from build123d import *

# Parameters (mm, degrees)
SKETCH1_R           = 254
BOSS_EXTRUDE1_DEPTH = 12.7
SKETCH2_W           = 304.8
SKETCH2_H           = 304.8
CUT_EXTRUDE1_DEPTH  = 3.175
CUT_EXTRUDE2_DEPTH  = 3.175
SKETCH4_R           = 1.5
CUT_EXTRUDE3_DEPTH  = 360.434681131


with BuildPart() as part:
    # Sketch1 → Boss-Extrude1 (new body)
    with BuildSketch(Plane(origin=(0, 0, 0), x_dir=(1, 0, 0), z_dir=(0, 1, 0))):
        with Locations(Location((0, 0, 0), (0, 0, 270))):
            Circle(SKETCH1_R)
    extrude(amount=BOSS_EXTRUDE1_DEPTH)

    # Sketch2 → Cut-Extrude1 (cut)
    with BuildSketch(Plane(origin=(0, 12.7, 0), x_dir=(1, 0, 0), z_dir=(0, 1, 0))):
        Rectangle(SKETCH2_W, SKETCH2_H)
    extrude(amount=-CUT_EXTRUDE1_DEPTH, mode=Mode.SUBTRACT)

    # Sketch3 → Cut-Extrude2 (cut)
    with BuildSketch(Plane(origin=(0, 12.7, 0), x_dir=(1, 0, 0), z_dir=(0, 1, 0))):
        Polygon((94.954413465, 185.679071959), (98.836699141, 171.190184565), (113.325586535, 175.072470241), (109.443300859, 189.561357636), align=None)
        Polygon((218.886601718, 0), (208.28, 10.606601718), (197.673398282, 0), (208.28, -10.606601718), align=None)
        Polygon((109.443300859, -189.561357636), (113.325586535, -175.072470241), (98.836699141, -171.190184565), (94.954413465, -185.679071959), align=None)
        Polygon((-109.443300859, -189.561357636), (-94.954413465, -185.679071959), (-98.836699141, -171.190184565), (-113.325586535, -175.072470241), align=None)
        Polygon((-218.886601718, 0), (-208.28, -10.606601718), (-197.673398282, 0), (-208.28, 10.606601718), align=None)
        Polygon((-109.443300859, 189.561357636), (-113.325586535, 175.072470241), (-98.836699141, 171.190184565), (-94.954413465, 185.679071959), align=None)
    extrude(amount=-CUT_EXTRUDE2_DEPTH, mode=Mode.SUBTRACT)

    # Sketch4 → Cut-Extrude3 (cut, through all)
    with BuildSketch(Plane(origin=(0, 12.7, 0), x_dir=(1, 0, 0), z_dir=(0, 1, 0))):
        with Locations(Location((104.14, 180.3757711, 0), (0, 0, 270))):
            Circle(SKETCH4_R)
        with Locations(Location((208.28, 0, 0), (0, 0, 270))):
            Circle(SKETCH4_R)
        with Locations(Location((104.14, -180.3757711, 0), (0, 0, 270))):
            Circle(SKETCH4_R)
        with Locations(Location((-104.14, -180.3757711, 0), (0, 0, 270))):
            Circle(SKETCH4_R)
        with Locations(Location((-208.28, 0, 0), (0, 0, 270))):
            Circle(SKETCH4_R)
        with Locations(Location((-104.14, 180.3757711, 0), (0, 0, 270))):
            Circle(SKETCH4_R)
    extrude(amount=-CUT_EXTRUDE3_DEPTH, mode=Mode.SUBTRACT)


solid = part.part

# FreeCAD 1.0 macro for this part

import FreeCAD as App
import Part
import Sketcher
from FreeCAD import Vector
Q = App.Units.Quantity

doc = App.newDocument("Part")
params = doc.addObject("Spreadsheet::Sheet", "Params")
for row, (alias, value) in enumerate([
    ("sketch1_diameter", "20 in"),
    ("pad1_length", "0.5 in"),
    ("sketch2_width", "12 in"),
    ("pocket1_length", "0.125 in"),
    ("pocket2_length", "0.125 in"),
], start=1):
    params.set(f"A{row}", alias)
    params.set(f"B{row}", "=" + value)
    params.setAlias(f"B{row}", alias)

body = doc.addObject("PartDesign::Body", "Body")

sketch1 = body.newObject("Sketcher::SketchObject", "Sketch")
sketch1.AttachmentSupport = (doc.getObject("XZ_Plane"), [""])
sketch1.MapMode = "FlatFace"
sketch1.addGeometry(Part.Circle(Vector(0, 0, 0), Vector(0, 0, 1), 254), False)
sketch1.addConstraint([
    Sketcher.Constraint("Coincident", 0, 3, -1, 1),
    Sketcher.Constraint("Diameter", 0, Q("20 in")),
])
sketch1.setExpression("Constraints[1]", "Params.sketch1_diameter")
pad1 = body.newObject("PartDesign::Pad", "Pad")
pad1.Profile = sketch1
pad1.setExpression("Length", "Params.pad1_length")
pad1.Reversed = True

sketch2 = body.newObject("Sketcher::SketchObject", "Sketch001")
sketch2.AttachmentSupport = (doc.getObject("XZ_Plane"), [""])
sketch2.MapMode = "FlatFace"
sketch2.AttachmentOffset = App.Placement(Vector(0, 0, -0.5 * 25.4), App.Rotation())
sketch2.addGeometry([
    Part.LineSegment(Vector(-152, -152, 0), Vector(-152, 152, 0)),
    Part.LineSegment(Vector(-152, 152, 0), Vector(152, 152, 0)),
    Part.LineSegment(Vector(152, 152, 0), Vector(152, -152, 0)),
    Part.LineSegment(Vector(152, -152, 0), Vector(-152, -152, 0)),
], False)
sketch2.addConstraint([
    Sketcher.Constraint("Coincident", 0, 2, 1, 1),
    Sketcher.Constraint("Coincident", 1, 2, 2, 1),
    Sketcher.Constraint("Coincident", 2, 2, 3, 1),
    Sketcher.Constraint("Coincident", 3, 2, 0, 1),
    Sketcher.Constraint("Vertical", 0),
    Sketcher.Constraint("Horizontal", 1),
    Sketcher.Constraint("Vertical", 2),
    Sketcher.Constraint("Horizontal", 3),
    Sketcher.Constraint("Symmetric", 0, 2, 2, 2, -1, 1),
    Sketcher.Constraint("Equal", 3, 0),
    Sketcher.Constraint("DistanceX", 1, 1, 1, 2, Q("12 in")),
])
sketch2.setExpression("Constraints[10]", "Params.sketch2_width")
pocket1 = body.newObject("PartDesign::Pocket", "Pocket")
pocket1.Profile = sketch2
pocket1.setExpression("Length", "Params.pocket1_length")
pocket1.Reversed = True

sketch3 = body.newObject("Sketcher::SketchObject", "Sketch002")
sketch3.AttachmentSupport = (doc.getObject("XZ_Plane"), [""])
sketch3.MapMode = "FlatFace"
sketch3.AttachmentOffset = App.Placement(Vector(0, 0, -0.5 * 25.4), App.Rotation())
sketch3.addGeometry([
    Part.LineSegment(Vector(95, -186, 0), Vector(99, -171, 0)),
    Part.LineSegment(Vector(99, -171, 0), Vector(113, -175, 0)),
    Part.LineSegment(Vector(113, -175, 0), Vector(109, -190, 0)),
    Part.LineSegment(Vector(109, -190, 0), Vector(95, -186, 0)),
    Part.LineSegment(Vector(219, 0, 0), Vector(208, -11, 0)),
    Part.LineSegment(Vector(208, -11, 0), Vector(198, 0, 0)),
    Part.LineSegment(Vector(198, 0, 0), Vector(208, 11, 0)),
    Part.LineSegment(Vector(208, 11, 0), Vector(219, 0, 0)),
    Part.LineSegment(Vector(109, 190, 0), Vector(113, 175, 0)),
    Part.LineSegment(Vector(113, 175, 0), Vector(99, 171, 0)),
    Part.LineSegment(Vector(99, 171, 0), Vector(95, 186, 0)),
    Part.LineSegment(Vector(95, 186, 0), Vector(109, 190, 0)),
    Part.LineSegment(Vector(-109, 190, 0), Vector(-95, 186, 0)),
    Part.LineSegment(Vector(-95, 186, 0), Vector(-99, 171, 0)),
    Part.LineSegment(Vector(-99, 171, 0), Vector(-113, 175, 0)),
    Part.LineSegment(Vector(-113, 175, 0), Vector(-109, 190, 0)),
    Part.LineSegment(Vector(-219, 0, 0), Vector(-208, 11, 0)),
    Part.LineSegment(Vector(-208, 11, 0), Vector(-198, 0, 0)),
    Part.LineSegment(Vector(-198, 0, 0), Vector(-208, -11, 0)),
    Part.LineSegment(Vector(-208, -11, 0), Vector(-219, 0, 0)),
    Part.LineSegment(Vector(-109, -190, 0), Vector(-113, -175, 0)),
    Part.LineSegment(Vector(-113, -175, 0), Vector(-99, -171, 0)),
    Part.LineSegment(Vector(-99, -171, 0), Vector(-95, -186, 0)),
    Part.LineSegment(Vector(-95, -186, 0), Vector(-109, -190, 0)),
], False)
sketch3.addConstraint([
    Sketcher.Constraint("Coincident", 0, 2, 1, 1),
    Sketcher.Constraint("Coincident", 1, 2, 2, 1),
    Sketcher.Constraint("Coincident", 2, 2, 3, 1),
    Sketcher.Constraint("Coincident", 3, 2, 0, 1),
    Sketcher.Constraint("Coincident", 4, 2, 5, 1),
    Sketcher.Constraint("Coincident", 5, 2, 6, 1),
    Sketcher.Constraint("Coincident", 6, 2, 7, 1),
    Sketcher.Constraint("Coincident", 7, 2, 4, 1),
    Sketcher.Constraint("Coincident", 8, 2, 9, 1),
    Sketcher.Constraint("Coincident", 9, 2, 10, 1),
    Sketcher.Constraint("Coincident", 10, 2, 11, 1),
    Sketcher.Constraint("Coincident", 11, 2, 8, 1),
    Sketcher.Constraint("Coincident", 12, 2, 13, 1),
    Sketcher.Constraint("Coincident", 13, 2, 14, 1),
    Sketcher.Constraint("Coincident", 14, 2, 15, 1),
    Sketcher.Constraint("Coincident", 15, 2, 12, 1),
    Sketcher.Constraint("Coincident", 16, 2, 17, 1),
    Sketcher.Constraint("Coincident", 17, 2, 18, 1),
    Sketcher.Constraint("Coincident", 18, 2, 19, 1),
    Sketcher.Constraint("Coincident", 19, 2, 16, 1),
    Sketcher.Constraint("Coincident", 20, 2, 21, 1),
    Sketcher.Constraint("Coincident", 21, 2, 22, 1),
    Sketcher.Constraint("Coincident", 22, 2, 23, 1),
    Sketcher.Constraint("Coincident", 23, 2, 20, 1),
    Sketcher.Constraint("Symmetric", 3, 2, 12, 2, -1, 1),
    Sketcher.Constraint("Symmetric", 0, 2, 13, 2, -1, 1),
    Sketcher.Constraint("Symmetric", 1, 2, 14, 2, -1, 1),
    Sketcher.Constraint("Symmetric", 2, 2, 15, 2, -1, 1),
    Sketcher.Constraint("Symmetric", 4, 2, 16, 2, -1, 1),
    Sketcher.Constraint("Symmetric", 5, 2, 17, 2, -1, 1),
    Sketcher.Constraint("Symmetric", 6, 2, 18, 2, -1, 1),
    Sketcher.Constraint("Symmetric", 7, 2, 19, 2, -1, 1),
    Sketcher.Constraint("Symmetric", 8, 2, 20, 2, -1, 1),
    Sketcher.Constraint("Symmetric", 9, 2, 21, 2, -1, 1),
    Sketcher.Constraint("Symmetric", 10, 2, 22, 2, -1, 1),
    Sketcher.Constraint("Symmetric", 11, 2, 23, 2, -1, 1),
    Sketcher.Constraint("Symmetric", 10, 2, 12, 2, -2),
    Sketcher.Constraint("Symmetric", 9, 2, 13, 2, -2),
    Sketcher.Constraint("Symmetric", 8, 2, 14, 2, -2),
    Sketcher.Constraint("Symmetric", 11, 2, 15, 2, -2),
    Sketcher.Constraint("Symmetric", 6, 2, 16, 2, -2),
    Sketcher.Constraint("PointOnObject", 5, 2, -1),
    Sketcher.Constraint("PointOnObject", 7, 2, -1),
    Sketcher.Constraint("Perpendicular", 0, 1),
    Sketcher.Constraint("Perpendicular", 1, 2),
    Sketcher.Constraint("Perpendicular", 2, 3),
    Sketcher.Constraint("Perpendicular", 4, 5),
    Sketcher.Constraint("Perpendicular", 5, 6),
    Sketcher.Constraint("Equal", 0, 1),
    Sketcher.Constraint("Equal", 3, 4),
    Sketcher.Constraint("Angle", 0, Q("75 deg")),
    Sketcher.Constraint("DistanceX", -1, 1, 4, 2, Q("8.2 in")),
    Sketcher.Constraint("DistanceX", 12, 2, 8, 2, Q("8.2 in")),
    Sketcher.Constraint("Distance", 0, 15.0),
    Sketcher.Constraint("DistanceY", 1, 2, -1, 1, 175.07247),
])
pocket2 = body.newObject("PartDesign::Pocket", "Pocket001")
pocket2.Profile = sketch3
pocket2.setExpression("Length", "Params.pocket2_length")
pocket2.Reversed = True

sketch4 = body.newObject("Sketcher::SketchObject", "Sketch003")
sketch4.AttachmentSupport = (doc.getObject("XZ_Plane"), [""])
sketch4.MapMode = "FlatFace"
sketch4.AttachmentOffset = App.Placement(Vector(0, 0, -0.5 * 25.4), App.Rotation())
sketch4.addGeometry([
    Part.Circle(Vector(104.1, -180.4, 0), Vector(0, 0, 1), 1.5),
    Part.Circle(Vector(208.3, 0, 0), Vector(0, 0, 1), 1.5),
    Part.Circle(Vector(104.1, 180.4, 0), Vector(0, 0, 1), 1.5),
    Part.Circle(Vector(-104.1, 180.4, 0), Vector(0, 0, 1), 1.5),
    Part.Circle(Vector(-208.3, 0, 0), Vector(0, 0, 1), 1.5),
    Part.Circle(Vector(-104.1, -180.4, 0), Vector(0, 0, 1), 1.5),
], False)
sketch4.addConstraint([
    Sketcher.Constraint("Equal", 0, 1),
    Sketcher.Constraint("Equal", 1, 2),
    Sketcher.Constraint("Equal", 2, 3),
    Sketcher.Constraint("Equal", 3, 4),
    Sketcher.Constraint("Equal", 4, 5),
    Sketcher.Constraint("Symmetric", 0, 3, 3, 3, -1, 1),
    Sketcher.Constraint("Symmetric", 1, 3, 4, 3, -1, 1),
    Sketcher.Constraint("Symmetric", 2, 3, 5, 3, -1, 1),
    Sketcher.Constraint("Symmetric", 2, 3, 3, 3, -2),
    Sketcher.Constraint("PointOnObject", 1, 3, -1),
    Sketcher.Constraint("DistanceX", -1, 1, 0, 3, Q("4.1 in")),
    Sketcher.Constraint("DistanceX", -1, 1, 1, 3, Q("8.2 in")),
    Sketcher.Constraint("Diameter", 0, 3.0),
    Sketcher.Constraint("DistanceY", 0, 3, -1, 1, 180.375771),
])
pocket3 = body.newObject("PartDesign::Pocket", "Pocket002")
pocket3.Profile = sketch4
pocket3.Type = "ThroughAll"
pocket3.Reversed = True

doc.recompute()
